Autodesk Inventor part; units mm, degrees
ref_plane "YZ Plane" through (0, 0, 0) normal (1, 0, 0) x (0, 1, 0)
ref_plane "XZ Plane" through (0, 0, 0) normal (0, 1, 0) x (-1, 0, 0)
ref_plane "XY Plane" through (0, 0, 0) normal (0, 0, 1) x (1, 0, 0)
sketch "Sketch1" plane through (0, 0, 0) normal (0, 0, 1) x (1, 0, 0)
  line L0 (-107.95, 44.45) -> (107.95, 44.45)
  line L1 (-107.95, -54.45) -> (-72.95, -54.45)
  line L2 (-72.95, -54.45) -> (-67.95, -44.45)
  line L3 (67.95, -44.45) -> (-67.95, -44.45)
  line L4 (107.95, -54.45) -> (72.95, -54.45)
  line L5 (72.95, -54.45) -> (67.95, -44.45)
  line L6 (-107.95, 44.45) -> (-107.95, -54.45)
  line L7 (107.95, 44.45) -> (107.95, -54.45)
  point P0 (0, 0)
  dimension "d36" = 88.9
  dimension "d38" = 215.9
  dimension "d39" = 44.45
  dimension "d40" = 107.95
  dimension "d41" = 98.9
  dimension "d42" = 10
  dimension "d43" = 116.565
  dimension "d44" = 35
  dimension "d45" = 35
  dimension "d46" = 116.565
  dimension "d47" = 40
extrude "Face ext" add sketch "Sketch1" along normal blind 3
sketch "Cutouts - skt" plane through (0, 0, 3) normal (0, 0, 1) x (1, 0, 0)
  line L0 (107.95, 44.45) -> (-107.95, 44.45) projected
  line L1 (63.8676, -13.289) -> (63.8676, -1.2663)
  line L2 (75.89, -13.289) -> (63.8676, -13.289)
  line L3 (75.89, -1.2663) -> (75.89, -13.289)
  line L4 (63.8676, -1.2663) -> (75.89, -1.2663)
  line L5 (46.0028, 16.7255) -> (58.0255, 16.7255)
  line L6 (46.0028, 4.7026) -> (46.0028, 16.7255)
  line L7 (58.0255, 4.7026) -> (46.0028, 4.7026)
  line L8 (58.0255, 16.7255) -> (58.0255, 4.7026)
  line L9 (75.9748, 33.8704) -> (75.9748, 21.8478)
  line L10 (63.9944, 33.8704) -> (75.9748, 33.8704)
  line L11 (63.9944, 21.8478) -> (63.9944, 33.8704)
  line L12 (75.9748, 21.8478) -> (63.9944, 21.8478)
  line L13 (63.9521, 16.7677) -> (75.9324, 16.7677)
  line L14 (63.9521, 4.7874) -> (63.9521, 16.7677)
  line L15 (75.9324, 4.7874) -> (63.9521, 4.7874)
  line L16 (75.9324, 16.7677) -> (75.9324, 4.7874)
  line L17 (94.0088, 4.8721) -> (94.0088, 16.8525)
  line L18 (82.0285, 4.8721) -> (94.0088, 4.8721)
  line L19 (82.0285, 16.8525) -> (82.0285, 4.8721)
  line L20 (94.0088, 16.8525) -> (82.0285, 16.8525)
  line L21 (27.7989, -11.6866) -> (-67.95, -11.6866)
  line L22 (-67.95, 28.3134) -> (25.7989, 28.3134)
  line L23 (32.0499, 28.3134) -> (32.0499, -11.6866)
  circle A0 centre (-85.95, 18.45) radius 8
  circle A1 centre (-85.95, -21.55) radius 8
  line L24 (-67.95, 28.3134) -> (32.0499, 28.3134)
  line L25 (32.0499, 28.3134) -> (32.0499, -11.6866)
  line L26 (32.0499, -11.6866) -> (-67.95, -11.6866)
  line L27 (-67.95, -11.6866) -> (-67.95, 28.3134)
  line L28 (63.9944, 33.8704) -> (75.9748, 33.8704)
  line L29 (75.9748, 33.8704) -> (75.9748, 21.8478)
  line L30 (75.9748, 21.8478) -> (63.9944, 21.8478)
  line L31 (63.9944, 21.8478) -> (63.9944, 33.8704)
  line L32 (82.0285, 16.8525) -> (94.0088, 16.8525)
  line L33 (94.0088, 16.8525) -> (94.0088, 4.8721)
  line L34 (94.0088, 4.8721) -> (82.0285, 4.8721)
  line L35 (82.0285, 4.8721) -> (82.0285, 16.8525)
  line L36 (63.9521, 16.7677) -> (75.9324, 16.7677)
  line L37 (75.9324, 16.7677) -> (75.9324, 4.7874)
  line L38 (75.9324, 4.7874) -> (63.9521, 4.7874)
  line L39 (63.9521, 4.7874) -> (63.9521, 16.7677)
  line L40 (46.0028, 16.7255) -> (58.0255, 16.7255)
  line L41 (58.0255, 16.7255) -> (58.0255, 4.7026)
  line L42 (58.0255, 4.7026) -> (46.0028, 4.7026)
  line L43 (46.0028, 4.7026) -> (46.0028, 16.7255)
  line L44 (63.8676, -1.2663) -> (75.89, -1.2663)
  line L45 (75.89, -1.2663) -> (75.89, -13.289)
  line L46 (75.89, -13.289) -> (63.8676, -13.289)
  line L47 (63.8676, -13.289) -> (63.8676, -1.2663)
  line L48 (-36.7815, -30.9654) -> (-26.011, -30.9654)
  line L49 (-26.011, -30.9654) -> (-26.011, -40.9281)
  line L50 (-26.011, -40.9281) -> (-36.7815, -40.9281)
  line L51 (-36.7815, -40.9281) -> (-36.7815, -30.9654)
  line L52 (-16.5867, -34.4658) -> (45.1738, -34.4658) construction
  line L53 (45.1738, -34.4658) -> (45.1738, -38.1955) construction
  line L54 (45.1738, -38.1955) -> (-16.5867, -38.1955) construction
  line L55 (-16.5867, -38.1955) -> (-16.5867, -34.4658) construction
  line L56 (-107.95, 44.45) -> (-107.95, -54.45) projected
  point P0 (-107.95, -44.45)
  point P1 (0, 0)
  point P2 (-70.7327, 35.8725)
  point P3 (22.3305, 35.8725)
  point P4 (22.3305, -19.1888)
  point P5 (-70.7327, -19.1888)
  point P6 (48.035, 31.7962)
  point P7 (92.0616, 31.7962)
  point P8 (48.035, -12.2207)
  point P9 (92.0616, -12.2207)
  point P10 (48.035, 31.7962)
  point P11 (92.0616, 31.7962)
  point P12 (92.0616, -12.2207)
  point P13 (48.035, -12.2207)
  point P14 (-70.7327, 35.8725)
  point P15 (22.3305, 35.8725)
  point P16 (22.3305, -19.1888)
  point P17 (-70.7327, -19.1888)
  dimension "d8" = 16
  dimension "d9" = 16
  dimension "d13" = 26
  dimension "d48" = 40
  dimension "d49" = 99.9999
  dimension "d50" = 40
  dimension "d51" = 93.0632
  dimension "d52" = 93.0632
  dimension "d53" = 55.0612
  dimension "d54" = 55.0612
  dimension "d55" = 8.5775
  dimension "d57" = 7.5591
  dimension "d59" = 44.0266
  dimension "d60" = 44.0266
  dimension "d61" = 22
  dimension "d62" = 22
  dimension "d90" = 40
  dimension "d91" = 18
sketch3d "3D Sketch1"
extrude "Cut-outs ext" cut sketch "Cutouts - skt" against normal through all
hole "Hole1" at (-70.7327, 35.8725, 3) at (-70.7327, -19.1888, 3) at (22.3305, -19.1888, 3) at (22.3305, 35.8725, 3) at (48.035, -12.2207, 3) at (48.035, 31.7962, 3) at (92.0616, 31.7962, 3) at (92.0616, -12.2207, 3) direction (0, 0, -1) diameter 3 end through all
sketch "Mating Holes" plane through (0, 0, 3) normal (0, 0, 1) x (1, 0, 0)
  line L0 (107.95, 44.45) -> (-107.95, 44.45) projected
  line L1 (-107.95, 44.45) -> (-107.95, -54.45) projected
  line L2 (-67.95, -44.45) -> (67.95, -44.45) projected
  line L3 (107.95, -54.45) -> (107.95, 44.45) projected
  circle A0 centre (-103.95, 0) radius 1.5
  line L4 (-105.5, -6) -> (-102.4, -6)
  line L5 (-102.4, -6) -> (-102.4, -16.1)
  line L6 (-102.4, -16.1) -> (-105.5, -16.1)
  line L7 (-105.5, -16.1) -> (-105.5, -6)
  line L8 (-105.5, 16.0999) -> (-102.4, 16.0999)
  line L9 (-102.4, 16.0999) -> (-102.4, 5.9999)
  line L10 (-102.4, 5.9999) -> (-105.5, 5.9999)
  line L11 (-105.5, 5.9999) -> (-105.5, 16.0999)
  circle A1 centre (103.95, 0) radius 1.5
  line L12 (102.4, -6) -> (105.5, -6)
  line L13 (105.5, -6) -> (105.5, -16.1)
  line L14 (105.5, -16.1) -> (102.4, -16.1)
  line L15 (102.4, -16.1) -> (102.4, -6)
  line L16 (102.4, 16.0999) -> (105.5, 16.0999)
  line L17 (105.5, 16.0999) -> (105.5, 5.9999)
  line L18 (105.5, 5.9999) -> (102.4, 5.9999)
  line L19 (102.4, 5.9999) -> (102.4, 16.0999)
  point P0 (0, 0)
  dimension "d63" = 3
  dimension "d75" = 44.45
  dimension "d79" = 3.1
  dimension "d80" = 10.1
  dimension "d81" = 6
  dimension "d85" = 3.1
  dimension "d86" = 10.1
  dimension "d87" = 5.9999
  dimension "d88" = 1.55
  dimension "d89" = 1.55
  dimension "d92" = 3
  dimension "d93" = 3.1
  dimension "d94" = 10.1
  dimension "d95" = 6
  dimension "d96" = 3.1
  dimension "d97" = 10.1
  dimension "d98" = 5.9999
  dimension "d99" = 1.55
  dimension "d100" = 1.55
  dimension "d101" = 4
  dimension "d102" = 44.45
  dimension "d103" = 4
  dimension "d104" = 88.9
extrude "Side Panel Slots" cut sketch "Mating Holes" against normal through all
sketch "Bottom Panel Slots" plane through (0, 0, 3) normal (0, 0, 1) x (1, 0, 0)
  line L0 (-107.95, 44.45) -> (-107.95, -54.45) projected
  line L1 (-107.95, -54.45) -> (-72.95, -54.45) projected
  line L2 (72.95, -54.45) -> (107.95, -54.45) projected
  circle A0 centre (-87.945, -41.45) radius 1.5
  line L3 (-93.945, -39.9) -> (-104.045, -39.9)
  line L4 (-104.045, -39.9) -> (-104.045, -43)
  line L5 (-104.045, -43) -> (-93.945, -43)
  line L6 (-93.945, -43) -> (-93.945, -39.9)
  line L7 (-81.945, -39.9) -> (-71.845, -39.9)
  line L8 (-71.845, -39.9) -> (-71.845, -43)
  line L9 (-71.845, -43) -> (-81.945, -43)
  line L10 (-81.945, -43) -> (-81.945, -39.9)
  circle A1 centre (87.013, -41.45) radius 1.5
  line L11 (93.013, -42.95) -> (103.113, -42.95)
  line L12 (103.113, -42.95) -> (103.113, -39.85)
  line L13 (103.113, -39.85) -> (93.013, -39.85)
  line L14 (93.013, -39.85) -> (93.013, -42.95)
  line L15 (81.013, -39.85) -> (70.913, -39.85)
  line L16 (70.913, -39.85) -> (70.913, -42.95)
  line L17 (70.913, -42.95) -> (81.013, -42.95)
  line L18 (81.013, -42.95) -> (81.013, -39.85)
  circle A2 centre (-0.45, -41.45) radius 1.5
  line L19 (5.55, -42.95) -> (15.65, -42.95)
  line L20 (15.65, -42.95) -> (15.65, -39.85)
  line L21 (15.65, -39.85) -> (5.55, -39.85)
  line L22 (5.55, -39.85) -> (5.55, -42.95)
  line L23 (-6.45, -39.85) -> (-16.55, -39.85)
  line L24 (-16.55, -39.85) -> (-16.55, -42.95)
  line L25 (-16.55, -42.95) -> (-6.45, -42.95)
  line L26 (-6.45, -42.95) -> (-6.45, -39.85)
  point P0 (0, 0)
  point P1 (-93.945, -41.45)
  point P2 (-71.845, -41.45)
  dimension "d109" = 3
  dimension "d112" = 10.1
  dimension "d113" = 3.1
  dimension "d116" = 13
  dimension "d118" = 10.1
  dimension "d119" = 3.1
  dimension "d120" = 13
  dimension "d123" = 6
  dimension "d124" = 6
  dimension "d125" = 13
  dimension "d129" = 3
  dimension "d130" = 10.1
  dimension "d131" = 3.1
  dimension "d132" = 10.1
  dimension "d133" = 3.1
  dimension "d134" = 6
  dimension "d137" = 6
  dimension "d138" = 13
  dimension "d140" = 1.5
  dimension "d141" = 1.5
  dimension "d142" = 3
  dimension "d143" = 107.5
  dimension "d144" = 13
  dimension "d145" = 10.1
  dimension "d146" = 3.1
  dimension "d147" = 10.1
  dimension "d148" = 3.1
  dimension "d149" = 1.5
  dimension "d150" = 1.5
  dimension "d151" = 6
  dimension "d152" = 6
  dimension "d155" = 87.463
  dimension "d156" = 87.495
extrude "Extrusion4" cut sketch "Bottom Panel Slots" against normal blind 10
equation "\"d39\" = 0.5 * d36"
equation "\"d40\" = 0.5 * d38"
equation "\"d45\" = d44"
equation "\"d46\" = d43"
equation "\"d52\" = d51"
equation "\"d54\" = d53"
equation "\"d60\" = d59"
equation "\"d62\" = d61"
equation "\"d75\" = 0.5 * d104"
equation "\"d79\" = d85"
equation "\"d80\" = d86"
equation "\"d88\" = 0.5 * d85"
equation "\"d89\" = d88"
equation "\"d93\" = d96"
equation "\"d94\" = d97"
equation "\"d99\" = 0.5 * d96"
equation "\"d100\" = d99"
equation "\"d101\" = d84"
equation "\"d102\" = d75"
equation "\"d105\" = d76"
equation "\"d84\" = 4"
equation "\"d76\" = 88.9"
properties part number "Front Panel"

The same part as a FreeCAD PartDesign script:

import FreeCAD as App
import Part
import Sketcher
from FreeCAD import Vector
Q = App.Units.Quantity


def add_polygon(sketch, points):
    """Adds a closed chain of lines whose ends are joined by coincident constraints."""
    first, n = sketch.GeometryCount, len(points)
    for a, b in zip(points, points[1:] + points[:1]):
        sketch.addGeometry(Part.LineSegment(App.Vector(*a, 0), App.Vector(*b, 0)), False)
    for i in range(n):
        sketch.addConstraint(Sketcher.Constraint("Coincident", first + i, 2, first + (i + 1) % n, 1))

doc = App.newDocument("Part")
body = doc.addObject("PartDesign::Body", "Body")

# Sketch on XY plane
sketch1 = body.newObject("Sketcher::SketchObject", "Sketch")
sketch1.AttachmentSupport = (doc.getObject("XY_Plane"), [""])
sketch1.MapMode = "FlatFace"
add_polygon(sketch1, [(108, 44), (-108, 44), (-108, -54), (-73, -54), (-68, -44), (68, -44), (73, -54), (108, -54)])  # lines 0-7
sketch1.addConstraint(Sketcher.Constraint("Horizontal", 0))
sketch1.addConstraint(Sketcher.Constraint("Vertical", 1))
sketch1.addConstraint(Sketcher.Constraint("Horizontal", 2))
sketch1.addConstraint(Sketcher.Constraint("Horizontal", 4))
sketch1.addConstraint(Sketcher.Constraint("Horizontal", 6))
sketch1.addConstraint(Sketcher.Constraint("Vertical", 7))
sketch1.addConstraint(Sketcher.Constraint("Symmetric", 2, 2, 5, 2, -2))
sketch1.addConstraint(Sketcher.Constraint("Equal", 2, 6))
sketch1.addConstraint(Sketcher.Constraint("Equal", 3, 5))
sketch1.addConstraint(Sketcher.Constraint("DistanceX", 2, 1, 2, 2, Q("35 mm")))
sketch1.addConstraint(Sketcher.Constraint("DistanceX", 0, 2, 0, 1, Q("215.9 mm")))
sketch1.addConstraint(Sketcher.Constraint("DistanceY", 1, 2, 1, 1, Q("98.9 mm")))
sketch1.addConstraint(Sketcher.Constraint("DistanceY", 2, 2, 3, 2, Q("10 mm")))
sketch1.addConstraint(Sketcher.Constraint("DistanceX", 1, 2, 3, 2, Q("40 mm")))
sketch1.addConstraint(Sketcher.Constraint("DistanceY", -1, 1, 0, 2, Q("44.45 mm")))
pad1 = body.newObject("PartDesign::Pad", "Pad")
pad1.Profile = sketch1
pad1.Length = 3

# Sketch on XY plane
sketch2 = body.newObject("Sketcher::SketchObject", "Sketch001")
sketch2.AttachmentSupport = (doc.getObject("XY_Plane"), [""])
sketch2.MapMode = "FlatFace"
sketch2.AttachmentOffset = App.Placement(Vector(0, 0, 3), App.Rotation())
add_polygon(sketch2, [(64, -1), (64, -13), (76, -13), (76, -1)])  # lines 0-3
add_polygon(sketch2, [(58, 17), (46, 17), (46, 5), (58, 5)])  # lines 4-7
add_polygon(sketch2, [(76, 22), (76, 34), (64, 34), (64, 22)])  # lines 8-11
add_polygon(sketch2, [(76, 17), (64, 17), (64, 5), (76, 5)])  # lines 12-15
add_polygon(sketch2, [(82, 5), (94, 5), (94, 17), (82, 17)])  # lines 16-19
add_polygon(sketch2, [(-68, -12), (32, -12), (32, 28), (-68, 28)])  # lines 20-23
sketch2.addGeometry(Part.Circle(Vector(-86, 18, 0), Vector(0, 0, 1), 8), False)  # 24
sketch2.addGeometry(Part.Circle(Vector(-86, -22, 0), Vector(0, 0, 1), 8), False)  # 25
add_polygon(sketch2, [(-26, -31), (-37, -31), (-37, -41), (-26, -41)])  # lines 26-29
sketch2.addConstraint(Sketcher.Constraint("Vertical", 0))
sketch2.addConstraint(Sketcher.Constraint("Horizontal", 1))
sketch2.addConstraint(Sketcher.Constraint("Vertical", 2))
sketch2.addConstraint(Sketcher.Constraint("Horizontal", 3))
sketch2.addConstraint(Sketcher.Constraint("Horizontal", 4))
sketch2.addConstraint(Sketcher.Constraint("Vertical", 5))
sketch2.addConstraint(Sketcher.Constraint("Horizontal", 6))
sketch2.addConstraint(Sketcher.Constraint("Vertical", 7))
sketch2.addConstraint(Sketcher.Constraint("Vertical", 8))
sketch2.addConstraint(Sketcher.Constraint("Horizontal", 9))
sketch2.addConstraint(Sketcher.Constraint("Vertical", 10))
sketch2.addConstraint(Sketcher.Constraint("Horizontal", 11))
sketch2.addConstraint(Sketcher.Constraint("Horizontal", 12))
sketch2.addConstraint(Sketcher.Constraint("Vertical", 13))
sketch2.addConstraint(Sketcher.Constraint("Horizontal", 14))
sketch2.addConstraint(Sketcher.Constraint("Vertical", 15))
sketch2.addConstraint(Sketcher.Constraint("Horizontal", 16))
sketch2.addConstraint(Sketcher.Constraint("Vertical", 17))
sketch2.addConstraint(Sketcher.Constraint("Horizontal", 18))
sketch2.addConstraint(Sketcher.Constraint("Vertical", 19))
sketch2.addConstraint(Sketcher.Constraint("Horizontal", 20))
sketch2.addConstraint(Sketcher.Constraint("Vertical", 21))
sketch2.addConstraint(Sketcher.Constraint("Horizontal", 22))
sketch2.addConstraint(Sketcher.Constraint("Vertical", 23))
sketch2.addConstraint(Sketcher.Constraint("Horizontal", 26))
sketch2.addConstraint(Sketcher.Constraint("Vertical", 27))
sketch2.addConstraint(Sketcher.Constraint("Horizontal", 28))
sketch2.addConstraint(Sketcher.Constraint("Vertical", 29))
sketch2.addConstraint(Sketcher.Constraint("Equal", 24, 25))
sketch2.addConstraint(Sketcher.Constraint("Vertical", 24, 3, 25, 3))
sketch2.addConstraint(Sketcher.Constraint("Equal", 11, 12))
sketch2.addConstraint(Sketcher.Constraint("Equal", 14, 16))
sketch2.addConstraint(Sketcher.Constraint("Equal", 6, 0))
sketch2.addConstraint(Sketcher.Constraint("Equal", 2, 5))
sketch2.addConstraint(Sketcher.Constraint("Equal", 2, 8))
sketch2.addConstraint(Sketcher.Constraint("Equal", 3, 10))
sketch2.addConstraint(Sketcher.Constraint("Equal", 18, 13))
sketch2.addConstraint(Sketcher.Constraint("Equal", 15, 17))
sketch2.addConstraint(Sketcher.Constraint("Diameter", 24, Q("16 mm")))
sketch2.addConstraint(Sketcher.Constraint("DistanceX", 20, 1, 20, 2, Q("100 mm")))
sketch2.addConstraint(Sketcher.Constraint("DistanceY", 21, 1, 21, 2, Q("40 mm")))
sketch2.addConstraint(Sketcher.Constraint("DistanceY", 25, 3, 24, 3, Q("40 mm")))
sketch2.addConstraint(Sketcher.Constraint("DistanceX", 24, 3, 22, 2, Q("18 mm")))
sketch2.addConstraint(Sketcher.Constraint("DistanceY", 5, 2, 5, 1, Q("12.023 mm")))
sketch2.addConstraint(Sketcher.Constraint("DistanceX", 24, 3, -1, 1, Q("85.95 mm")))
sketch2.addConstraint(Sketcher.Constraint("DistanceY", -1, 1, 24, 3, Q("18.45 mm")))
sketch2.addConstraint(Sketcher.Constraint("DistanceX", -1, 1, 1, 2, Q("75.89 mm")))
sketch2.addConstraint(Sketcher.Constraint("DistanceY", 12, 2, 10, 2, Q("5.08 mm")))
sketch2.addConstraint(Sketcher.Constraint("DistanceX", 9, 2, 9, 1, Q("11.9804 mm")))
sketch2.addConstraint(Sketcher.Constraint("DistanceX", 26, 2, 26, 1, Q("10.7705 mm")))
sketch2.addConstraint(Sketcher.Constraint("DistanceY", 27, 2, 27, 1, Q("9.9627 mm")))
sketch2.addConstraint(Sketcher.Constraint("DistanceY", 0, 2, -1, 1, Q("13.289 mm")))
sketch2.addConstraint(Sketcher.Constraint("DistanceX", -1, 1, 12, 2, Q("63.952 mm")))
sketch2.addConstraint(Sketcher.Constraint("DistanceY", -1, 1, 16, 2, Q("4.872 mm")))
sketch2.addConstraint(Sketcher.Constraint("DistanceY", 27, 2, -1, 1, Q("40.928 mm")))
sketch2.addConstraint(Sketcher.Constraint("DistanceX", 28, 2, -1, 1, Q("26.011 mm")))
sketch2.addConstraint(Sketcher.Constraint("DistanceY", 3, 2, 5, 2, Q("5.969 mm")))
sketch2.addConstraint(Sketcher.Constraint("DistanceX", 6, 2, 3, 2, Q("5.842 mm")))
sketch2.addConstraint(Sketcher.Constraint("DistanceY", 7, 2, 8, 2, Q("17.145 mm")))
sketch2.addConstraint(Sketcher.Constraint("DistanceX", 4, 2, 8, 2, Q("29.972 mm")))
sketch2.addConstraint(Sketcher.Constraint("DistanceX", 11, 2, 16, 2, Q("18.034 mm")))
sketch2.addConstraint(Sketcher.Constraint("DistanceY", 20, 2, 4, 2, Q("28.412 mm")))
pocket1 = body.newObject("PartDesign::Pocket", "Pocket")
pocket1.Profile = sketch2
pocket1.Type = "ThroughAll"

# Sketch on XY plane
sketch3 = body.newObject("Sketcher::SketchObject", "Sketch002")
sketch3.AttachmentSupport = (doc.getObject("XY_Plane"), [""])
sketch3.MapMode = "FlatFace"
sketch3.AttachmentOffset = App.Placement(Vector(0, 0, 3), App.Rotation())
sketch3.addGeometry(Part.Circle(Vector(-70.7, 35.9, 0), Vector(0, 0, 1), 1.5), False)
sketch3.addGeometry(Part.Circle(Vector(-70.7, -19.2, 0), Vector(0, 0, 1), 1.5), False)
sketch3.addGeometry(Part.Circle(Vector(22.3, -19.2, 0), Vector(0, 0, 1), 1.5), False)
sketch3.addGeometry(Part.Circle(Vector(22.3, 35.9, 0), Vector(0, 0, 1), 1.5), False)
sketch3.addGeometry(Part.Circle(Vector(48, -12.2, 0), Vector(0, 0, 1), 1.5), False)
sketch3.addGeometry(Part.Circle(Vector(48, 31.8, 0), Vector(0, 0, 1), 1.5), False)
sketch3.addGeometry(Part.Circle(Vector(92.1, 31.8, 0), Vector(0, 0, 1), 1.5), False)
sketch3.addGeometry(Part.Circle(Vector(92.1, -12.2, 0), Vector(0, 0, 1), 1.5), False)
sketch3.addConstraint(Sketcher.Constraint("Equal", 0, 1))
sketch3.addConstraint(Sketcher.Constraint("Equal", 1, 2))
sketch3.addConstraint(Sketcher.Constraint("Equal", 2, 3))
sketch3.addConstraint(Sketcher.Constraint("Equal", 3, 4))
sketch3.addConstraint(Sketcher.Constraint("Equal", 4, 5))
sketch3.addConstraint(Sketcher.Constraint("Equal", 5, 6))
sketch3.addConstraint(Sketcher.Constraint("Equal", 6, 7))
sketch3.addConstraint(Sketcher.Constraint("Horizontal", 1, 3, 2, 3))
sketch3.addConstraint(Sketcher.Constraint("Horizontal", 0, 3, 3, 3))
sketch3.addConstraint(Sketcher.Constraint("Horizontal", 5, 3, 6, 3))
sketch3.addConstraint(Sketcher.Constraint("Horizontal", 4, 3, 7, 3))
sketch3.addConstraint(Sketcher.Constraint("Vertical", 0, 3, 1, 3))
sketch3.addConstraint(Sketcher.Constraint("Vertical", 2, 3, 3, 3))
sketch3.addConstraint(Sketcher.Constraint("Vertical", 4, 3, 5, 3))
sketch3.addConstraint(Sketcher.Constraint("Vertical", 6, 3, 7, 3))
sketch3.addConstraint(Sketcher.Constraint("Diameter", 0, Q("3 mm")))
sketch3.addConstraint(Sketcher.Constraint("DistanceX", -1, 1, 4, 3, Q("48.035 mm")))
sketch3.addConstraint(Sketcher.Constraint("DistanceY", 2, 3, 4, 3, Q("6.968 mm")))
sketch3.addConstraint(Sketcher.Constraint("DistanceY", 4, 3, 5, 3, Q("44.017 mm")))
sketch3.addConstraint(Sketcher.Constraint("DistanceX", 3, 3, 6, 3, Q("69.731 mm")))
sketch3.addConstraint(Sketcher.Constraint("DistanceX", 0, 3, -1, 1, Q("70.7327 mm")))
sketch3.addConstraint(Sketcher.Constraint("DistanceY", -1, 1, 0, 3, Q("35.8725 mm")))
sketch3.addConstraint(Sketcher.Constraint("DistanceY", 1, 3, -1, 1, Q("19.1888 mm")))
sketch3.addConstraint(Sketcher.Constraint("DistanceX", -1, 1, 2, 3, Q("22.3305 mm")))
doc.recompute()
hole = body.newObject("PartDesign::Hole", "Hole")
hole.Profile = sketch3
hole.ThreadType = "None"
hole.Diameter = 3
hole.DepthType = "ThroughAll"

# Sketch on XY plane
sketch4 = body.newObject("Sketcher::SketchObject", "Sketch003")
sketch4.AttachmentSupport = (doc.getObject("XY_Plane"), [""])
sketch4.MapMode = "FlatFace"
sketch4.AttachmentOffset = App.Placement(Vector(0, 0, 3), App.Rotation())
sketch4.addGeometry(Part.Circle(Vector(-104, 0, 0), Vector(0, 0, 1), 1.5), False)  # 0
add_polygon(sketch4, [(-102.4, -6), (-105.5, -6), (-105.5, -16.1), (-102.4, -16.1)])  # lines 1-4
add_polygon(sketch4, [(-102.4, 16.1), (-105.5, 16.1), (-105.5, 6), (-102.4, 6)])  # lines 5-8
sketch4.addGeometry(Part.Circle(Vector(104, 0, 0), Vector(0, 0, 1), 1.5), False)  # 9
add_polygon(sketch4, [(105.5, -6), (102.4, -6), (102.4, -16.1), (105.5, -16.1)])  # lines 10-13
add_polygon(sketch4, [(105.5, 16.1), (102.4, 16.1), (102.4, 6), (105.5, 6)])  # lines 14-17
sketch4.addConstraint(Sketcher.Constraint("Horizontal", 1))
sketch4.addConstraint(Sketcher.Constraint("Vertical", 2))
sketch4.addConstraint(Sketcher.Constraint("Horizontal", 3))
sketch4.addConstraint(Sketcher.Constraint("Vertical", 4))
sketch4.addConstraint(Sketcher.Constraint("Horizontal", 5))
sketch4.addConstraint(Sketcher.Constraint("Vertical", 6))
sketch4.addConstraint(Sketcher.Constraint("Horizontal", 7))
sketch4.addConstraint(Sketcher.Constraint("Vertical", 8))
sketch4.addConstraint(Sketcher.Constraint("Horizontal", 10))
sketch4.addConstraint(Sketcher.Constraint("Vertical", 11))
sketch4.addConstraint(Sketcher.Constraint("Horizontal", 12))
sketch4.addConstraint(Sketcher.Constraint("Vertical", 13))
sketch4.addConstraint(Sketcher.Constraint("Horizontal", 14))
sketch4.addConstraint(Sketcher.Constraint("Vertical", 15))
sketch4.addConstraint(Sketcher.Constraint("Horizontal", 16))
sketch4.addConstraint(Sketcher.Constraint("Vertical", 17))
sketch4.addConstraint(Sketcher.Constraint("Equal", 0, 9))
sketch4.addConstraint(Sketcher.Constraint("Symmetric", 0, 3, 9, 3, -1, 1))
sketch4.addConstraint(Sketcher.Constraint("Symmetric", 7, 2, 10, 2, -1, 1))
sketch4.addConstraint(Sketcher.Constraint("Symmetric", 5, 2, 12, 2, -1, 1))
sketch4.addConstraint(Sketcher.Constraint("Symmetric", 3, 2, 14, 2, -1, 1))
sketch4.addConstraint(Sketcher.Constraint("Symmetric", 1, 2, 16, 2, -1, 1))
sketch4.addConstraint(Sketcher.Constraint("Symmetric", 4, 2, 10, 2, -2))
sketch4.addConstraint(Sketcher.Constraint("Symmetric", 2, 2, 12, 2, -2))
sketch4.addConstraint(Sketcher.Constraint("PointOnObject", 0, 3, -1))
sketch4.addConstraint(Sketcher.Constraint("Diameter", 0, Q("3 mm")))
sketch4.addConstraint(Sketcher.Constraint("DistanceX", 1, 2, 1, 1, Q("3.1 mm")))
sketch4.addConstraint(Sketcher.Constraint("DistanceY", 2, 2, 2, 1, Q("10.1 mm")))
sketch4.addConstraint(Sketcher.Constraint("DistanceY", 1, 2, -1, 1, Q("6 mm")))
sketch4.addConstraint(Sketcher.Constraint("DistanceX", 1, 2, 0, 3, Q("1.55 mm")))
sketch4.addConstraint(Sketcher.Constraint("DistanceX", 1, 2, -1, 1, Q("105.5 mm")))
pocket2 = body.newObject("PartDesign::Pocket", "Pocket001")
pocket2.Profile = sketch4
pocket2.Type = "ThroughAll"

# Sketch on XY plane
sketch5 = body.newObject("Sketcher::SketchObject", "Sketch004")
sketch5.AttachmentSupport = (doc.getObject("XY_Plane"), [""])
sketch5.MapMode = "FlatFace"
sketch5.AttachmentOffset = App.Placement(Vector(0, 0, 3), App.Rotation())
sketch5.addGeometry(Part.Circle(Vector(-87.9, -41.5, 0), Vector(0, 0, 1), 1.5), False)  # 0
add_polygon(sketch5, [(-93.9, -43), (-93.9, -39.9), (-104, -39.9), (-104, -43)])  # lines 1-4
add_polygon(sketch5, [(-71.8, -39.9), (-81.9, -39.9), (-81.9, -43), (-71.8, -43)])  # lines 5-8
sketch5.addGeometry(Part.Circle(Vector(87, -41.5, 0), Vector(0, 0, 1), 1.5), False)  # 9
add_polygon(sketch5, [(93, -39.9), (93, -43), (103.1, -43), (103.1, -39.9)])  # lines 10-13
add_polygon(sketch5, [(81, -43), (81, -39.9), (70.9, -39.9), (70.9, -43)])  # lines 14-17
sketch5.addGeometry(Part.Circle(Vector(-0.5, -41.5, 0), Vector(0, 0, 1), 1.5), False)  # 18
add_polygon(sketch5, [(5.5, -39.9), (5.5, -43), (15.7, -43), (15.7, -39.9)])  # lines 19-22
add_polygon(sketch5, [(-6.5, -43), (-6.5, -39.9), (-16.6, -39.9), (-16.6, -43)])  # lines 23-26
sketch5.addConstraint(Sketcher.Constraint("Vertical", 1))
sketch5.addConstraint(Sketcher.Constraint("Horizontal", 2))
sketch5.addConstraint(Sketcher.Constraint("Vertical", 3))
sketch5.addConstraint(Sketcher.Constraint("Horizontal", 4))
sketch5.addConstraint(Sketcher.Constraint("Horizontal", 5))
sketch5.addConstraint(Sketcher.Constraint("Vertical", 6))
sketch5.addConstraint(Sketcher.Constraint("Horizontal", 7))
sketch5.addConstraint(Sketcher.Constraint("Vertical", 8))
sketch5.addConstraint(Sketcher.Constraint("Vertical", 10))
sketch5.addConstraint(Sketcher.Constraint("Horizontal", 11))
sketch5.addConstraint(Sketcher.Constraint("Vertical", 12))
sketch5.addConstraint(Sketcher.Constraint("Horizontal", 13))
sketch5.addConstraint(Sketcher.Constraint("Vertical", 14))
sketch5.addConstraint(Sketcher.Constraint("Horizontal", 15))
sketch5.addConstraint(Sketcher.Constraint("Vertical", 16))
sketch5.addConstraint(Sketcher.Constraint("Horizontal", 17))
sketch5.addConstraint(Sketcher.Constraint("Vertical", 19))
sketch5.addConstraint(Sketcher.Constraint("Horizontal", 20))
sketch5.addConstraint(Sketcher.Constraint("Vertical", 21))
sketch5.addConstraint(Sketcher.Constraint("Horizontal", 22))
sketch5.addConstraint(Sketcher.Constraint("Vertical", 23))
sketch5.addConstraint(Sketcher.Constraint("Horizontal", 24))
sketch5.addConstraint(Sketcher.Constraint("Vertical", 25))
sketch5.addConstraint(Sketcher.Constraint("Horizontal", 26))
sketch5.addConstraint(Sketcher.Constraint("Equal", 0, 9))
sketch5.addConstraint(Sketcher.Constraint("Equal", 9, 18))
sketch5.addConstraint(Sketcher.Constraint("Horizontal", 0, 3, 9, 3))
sketch5.addConstraint(Sketcher.Constraint("Horizontal", 9, 3, 18, 3))
sketch5.addConstraint(Sketcher.Constraint("Horizontal", 2, 2, 5, 2))
sketch5.addConstraint(Sketcher.Constraint("Horizontal", 4, 2, 6, 2))
sketch5.addConstraint(Sketcher.Constraint("Horizontal", 13, 2, 14, 2))
sketch5.addConstraint(Sketcher.Constraint("Horizontal", 11, 2, 16, 2))
sketch5.addConstraint(Sketcher.Constraint("Horizontal", 17, 2, 19, 2))
sketch5.addConstraint(Sketcher.Constraint("Horizontal", 15, 2, 21, 2))
sketch5.addConstraint(Sketcher.Constraint("Horizontal", 22, 2, 23, 2))
sketch5.addConstraint(Sketcher.Constraint("Horizontal", 20, 2, 25, 2))
sketch5.addConstraint(Sketcher.Constraint("Equal", 4, 5))
sketch5.addConstraint(Sketcher.Constraint("Equal", 7, 11))
sketch5.addConstraint(Sketcher.Constraint("Equal", 13, 15))
sketch5.addConstraint(Sketcher.Constraint("Equal", 17, 20))
sketch5.addConstraint(Sketcher.Constraint("Equal", 22, 24))
sketch5.addConstraint(Sketcher.Constraint("Equal", 8, 10))
sketch5.addConstraint(Sketcher.Constraint("Diameter", 0, Q("3 mm")))
sketch5.addConstraint(Sketcher.Constraint("DistanceX", 2, 2, 2, 1, Q("10.1 mm")))
sketch5.addConstraint(Sketcher.Constraint("DistanceY", 1, 1, 1, 2, Q("3.1 mm")))
sketch5.addConstraint(Sketcher.Constraint("DistanceX", 1, 2, 0, 3, Q("6 mm")))
sketch5.addConstraint(Sketcher.Constraint("DistanceX", 0, 3, 5, 2, Q("6 mm")))
sketch5.addConstraint(Sketcher.Constraint("DistanceX", 9, 3, 10, 2, Q("6 mm")))
sketch5.addConstraint(Sketcher.Constraint("DistanceX", 14, 2, 9, 3, Q("6 mm")))
sketch5.addConstraint(Sketcher.Constraint("DistanceX", 18, 3, 19, 2, Q("6 mm")))
sketch5.addConstraint(Sketcher.Constraint("DistanceX", 23, 2, 18, 3, Q("6 mm")))
sketch5.addConstraint(Sketcher.Constraint("DistanceY", 10, 2, 9, 3, Q("1.5 mm")))
sketch5.addConstraint(Sketcher.Constraint("DistanceY", 3, 2, -1, 1, Q("43 mm")))
sketch5.addConstraint(Sketcher.Constraint("DistanceX", 18, 3, 9, 3, Q("87.463 mm")))
sketch5.addConstraint(Sketcher.Constraint("DistanceX", 0, 3, 18, 3, Q("87.495 mm")))
sketch5.addConstraint(Sketcher.Constraint("DistanceY", 0, 3, -1, 1, Q("41.45 mm")))
sketch5.addConstraint(Sketcher.Constraint("DistanceX", 18, 3, -1, 1, Q("0.45 mm")))
pocket3 = body.newObject("PartDesign::Pocket", "Pocket002")
pocket3.Profile = sketch5
pocket3.Length = 10

doc.recompute()
